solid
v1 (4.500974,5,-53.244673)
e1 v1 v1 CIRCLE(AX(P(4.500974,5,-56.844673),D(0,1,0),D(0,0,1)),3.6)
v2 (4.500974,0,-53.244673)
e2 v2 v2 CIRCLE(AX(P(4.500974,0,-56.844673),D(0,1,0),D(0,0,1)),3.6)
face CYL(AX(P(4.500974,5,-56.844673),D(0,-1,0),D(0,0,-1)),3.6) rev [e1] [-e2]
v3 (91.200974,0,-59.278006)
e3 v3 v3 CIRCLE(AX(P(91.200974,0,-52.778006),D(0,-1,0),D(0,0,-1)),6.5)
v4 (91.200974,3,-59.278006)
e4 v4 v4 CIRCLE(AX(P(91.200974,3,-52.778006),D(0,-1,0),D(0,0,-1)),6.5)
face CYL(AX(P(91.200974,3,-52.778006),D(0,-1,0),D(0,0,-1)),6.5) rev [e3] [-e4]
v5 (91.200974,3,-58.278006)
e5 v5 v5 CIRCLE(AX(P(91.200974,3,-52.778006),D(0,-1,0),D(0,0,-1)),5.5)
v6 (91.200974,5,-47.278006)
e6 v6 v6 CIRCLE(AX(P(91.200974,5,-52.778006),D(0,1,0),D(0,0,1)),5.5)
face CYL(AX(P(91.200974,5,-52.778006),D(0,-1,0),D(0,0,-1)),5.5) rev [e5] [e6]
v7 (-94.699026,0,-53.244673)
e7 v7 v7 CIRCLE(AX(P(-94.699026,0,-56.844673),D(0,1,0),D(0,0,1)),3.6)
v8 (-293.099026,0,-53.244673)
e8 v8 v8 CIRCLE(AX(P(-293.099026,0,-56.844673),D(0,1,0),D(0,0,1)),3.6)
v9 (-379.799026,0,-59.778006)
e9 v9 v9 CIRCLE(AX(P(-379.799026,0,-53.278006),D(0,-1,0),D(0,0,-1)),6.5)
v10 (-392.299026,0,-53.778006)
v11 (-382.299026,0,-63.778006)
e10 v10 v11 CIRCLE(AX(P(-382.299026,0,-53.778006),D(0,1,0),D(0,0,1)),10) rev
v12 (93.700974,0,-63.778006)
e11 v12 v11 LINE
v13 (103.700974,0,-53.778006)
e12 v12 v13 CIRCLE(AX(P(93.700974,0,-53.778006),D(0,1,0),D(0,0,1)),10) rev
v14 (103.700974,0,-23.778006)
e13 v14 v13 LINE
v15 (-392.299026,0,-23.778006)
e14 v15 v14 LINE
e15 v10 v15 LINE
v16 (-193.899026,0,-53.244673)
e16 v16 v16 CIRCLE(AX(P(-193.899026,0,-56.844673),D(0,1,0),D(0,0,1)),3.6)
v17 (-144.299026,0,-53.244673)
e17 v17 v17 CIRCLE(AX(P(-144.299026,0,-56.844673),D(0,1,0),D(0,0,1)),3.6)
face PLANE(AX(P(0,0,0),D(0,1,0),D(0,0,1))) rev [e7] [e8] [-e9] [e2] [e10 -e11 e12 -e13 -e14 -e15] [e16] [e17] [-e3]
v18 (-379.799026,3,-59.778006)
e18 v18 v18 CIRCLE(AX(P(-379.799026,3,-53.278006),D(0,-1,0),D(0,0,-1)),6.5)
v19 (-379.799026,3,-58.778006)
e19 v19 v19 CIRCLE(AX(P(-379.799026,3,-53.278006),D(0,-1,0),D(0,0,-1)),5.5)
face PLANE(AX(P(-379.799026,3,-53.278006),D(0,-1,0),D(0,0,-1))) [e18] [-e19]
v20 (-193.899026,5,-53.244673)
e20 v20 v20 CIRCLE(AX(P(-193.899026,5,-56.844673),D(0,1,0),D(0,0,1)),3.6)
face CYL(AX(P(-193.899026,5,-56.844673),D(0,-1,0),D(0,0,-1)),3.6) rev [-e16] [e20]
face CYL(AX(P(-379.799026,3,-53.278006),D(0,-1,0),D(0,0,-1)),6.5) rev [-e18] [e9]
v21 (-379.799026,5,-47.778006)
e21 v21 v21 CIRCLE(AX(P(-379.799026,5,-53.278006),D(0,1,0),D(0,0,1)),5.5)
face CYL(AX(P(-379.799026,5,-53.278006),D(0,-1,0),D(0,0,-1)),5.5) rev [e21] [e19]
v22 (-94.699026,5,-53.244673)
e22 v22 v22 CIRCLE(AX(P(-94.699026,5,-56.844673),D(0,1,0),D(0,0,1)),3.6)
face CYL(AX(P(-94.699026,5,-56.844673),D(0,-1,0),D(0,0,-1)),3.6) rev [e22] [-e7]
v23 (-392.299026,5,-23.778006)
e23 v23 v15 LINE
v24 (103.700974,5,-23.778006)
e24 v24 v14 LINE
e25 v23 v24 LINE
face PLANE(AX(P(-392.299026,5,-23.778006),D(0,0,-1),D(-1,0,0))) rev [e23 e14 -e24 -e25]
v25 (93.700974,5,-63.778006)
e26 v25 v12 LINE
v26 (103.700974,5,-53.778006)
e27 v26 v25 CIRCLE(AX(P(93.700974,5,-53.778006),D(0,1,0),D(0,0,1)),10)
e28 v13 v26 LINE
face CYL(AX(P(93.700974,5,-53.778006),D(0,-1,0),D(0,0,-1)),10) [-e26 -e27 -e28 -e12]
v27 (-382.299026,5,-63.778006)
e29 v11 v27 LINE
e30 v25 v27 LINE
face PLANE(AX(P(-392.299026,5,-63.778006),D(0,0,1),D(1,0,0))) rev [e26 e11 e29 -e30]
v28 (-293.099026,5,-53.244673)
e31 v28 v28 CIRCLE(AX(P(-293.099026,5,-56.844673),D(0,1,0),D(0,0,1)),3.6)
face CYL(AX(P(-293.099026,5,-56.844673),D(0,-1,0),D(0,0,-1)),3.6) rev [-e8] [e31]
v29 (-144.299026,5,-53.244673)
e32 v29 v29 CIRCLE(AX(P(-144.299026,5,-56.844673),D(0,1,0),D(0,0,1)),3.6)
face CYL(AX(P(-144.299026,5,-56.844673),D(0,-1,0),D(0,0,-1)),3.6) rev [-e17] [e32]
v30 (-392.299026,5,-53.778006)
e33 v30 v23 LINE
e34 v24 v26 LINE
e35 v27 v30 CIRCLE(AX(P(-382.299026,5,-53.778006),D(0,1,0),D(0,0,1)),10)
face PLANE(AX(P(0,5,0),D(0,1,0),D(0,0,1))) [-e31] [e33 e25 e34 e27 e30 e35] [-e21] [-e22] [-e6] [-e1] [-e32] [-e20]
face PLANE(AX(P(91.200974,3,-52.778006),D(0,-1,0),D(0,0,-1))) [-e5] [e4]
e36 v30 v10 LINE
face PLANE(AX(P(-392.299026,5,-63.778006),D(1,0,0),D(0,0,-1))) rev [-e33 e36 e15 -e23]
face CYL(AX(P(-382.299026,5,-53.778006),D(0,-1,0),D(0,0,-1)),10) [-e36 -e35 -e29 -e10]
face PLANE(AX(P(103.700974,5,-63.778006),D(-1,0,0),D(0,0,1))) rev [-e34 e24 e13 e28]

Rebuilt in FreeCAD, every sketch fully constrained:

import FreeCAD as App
import Part
import Sketcher


def edges_at(feature, points):
    """Names of the edges that pass closest to the given points."""
    edges = feature.Shape.Edges
    near = lambda p: min(range(len(edges)), key=lambda i: edges[i].distToShape(Part.Vertex(*p))[0])
    return sorted({f"Edge{near(p) + 1}" for p in points})


def add_polygon(sketch, points):
    """Adds a closed chain of lines whose ends are joined by coincident constraints."""
    first, n = sketch.GeometryCount, len(points)
    for a, b in zip(points, points[1:] + points[:1]):
        sketch.addGeometry(Part.LineSegment(App.Vector(*a, 0), App.Vector(*b, 0)), False)
    for i in range(n):
        sketch.addConstraint(Sketcher.Constraint("Coincident", first + i, 2, first + (i + 1) % n, 1))

doc = App.newDocument("Part")
params = doc.addObject("Spreadsheet::Sheet", "Params")
for row, (alias, value) in enumerate([
    ("sketch1_diameter", "11 mm"),
    ("sketch1_diameter2", "7.2 mm"),
    ("sketch1_width", "496 mm"),
    ("sketch1_height", "40 mm"),
    ("pad1_length", "5 mm"),
    ("sketch2_diameter", "13 mm"),
    ("pocket1_length", "3 mm"),
    ("fillet_radius", "10 mm"),
], start=1):
    params.set(f"A{row}", alias)
    params.set(f"B{row}", "=" + value)
    params.setAlias(f"B{row}", alias)

body = doc.addObject("PartDesign::Body", "Body")

sketch1 = body.newObject("Sketcher::SketchObject", "Sketch")
sketch1.AttachmentSupport = (doc.getObject("XZ_Plane"), [""])
sketch1.MapMode = "FlatFace"
add_polygon(sketch1, [(-392.3, -63.8), (-392.3, -23.8), (103.7, -23.8), (103.7, -63.8)])
sketch1.addGeometry(Part.Circle(App.Vector(-379.8, -53.3, 0), App.Vector(0, 0, 1), 5.5), False)
sketch1.addGeometry(Part.Circle(App.Vector(91.2, -52.8, 0), App.Vector(0, 0, 1), 5.5), False)
sketch1.addGeometry(Part.Circle(App.Vector(-293.1, -56.8, 0), App.Vector(0, 0, 1), 3.6), False)
sketch1.addGeometry(Part.Circle(App.Vector(-193.9, -56.8, 0), App.Vector(0, 0, 1), 3.6), False)
sketch1.addGeometry(Part.Circle(App.Vector(-144.3, -56.8, 0), App.Vector(0, 0, 1), 3.6), False)
sketch1.addGeometry(Part.Circle(App.Vector(-94.7, -56.8, 0), App.Vector(0, 0, 1), 3.6), False)
sketch1.addGeometry(Part.Circle(App.Vector(4.5, -56.8, 0), App.Vector(0, 0, 1), 3.6), False)
sketch1.addConstraint(Sketcher.Constraint("Vertical", 0))
sketch1.addConstraint(Sketcher.Constraint("Horizontal", 1))
sketch1.addConstraint(Sketcher.Constraint("Vertical", 2))
sketch1.addConstraint(Sketcher.Constraint("Horizontal", 3))
sketch1.addConstraint(Sketcher.Constraint("Equal", 4, 5))
sketch1.addConstraint(Sketcher.Constraint("Equal", 6, 7))
sketch1.addConstraint(Sketcher.Constraint("Equal", 7, 8))
sketch1.addConstraint(Sketcher.Constraint("Equal", 8, 9))
sketch1.addConstraint(Sketcher.Constraint("Equal", 9, 10))
sketch1.addConstraint(Sketcher.Constraint("Horizontal", 6, 3, 7, 3))
sketch1.addConstraint(Sketcher.Constraint("Horizontal", 7, 3, 8, 3))
sketch1.addConstraint(Sketcher.Constraint("Horizontal", 8, 3, 9, 3))
sketch1.addConstraint(Sketcher.Constraint("Horizontal", 9, 3, 10, 3))
sketch1.addConstraint(Sketcher.Constraint("Diameter", 4, 11.0))
sketch1.addConstraint(Sketcher.Constraint("Diameter", 6, 7.2))
sketch1.addConstraint(Sketcher.Constraint("DistanceX", 1, 1, 1, 2, 496.0))
sketch1.addConstraint(Sketcher.Constraint("DistanceY", 0, 1, 0, 2, 40.0))
sketch1.addConstraint(Sketcher.Constraint("DistanceX", 4, 3, 5, 3, 471.0))
sketch1.addConstraint(Sketcher.Constraint("DistanceX", 0, 2, 8, 3, 248.0))
sketch1.addConstraint(Sketcher.Constraint("DistanceY", 5, 3, 1, 2, 29.0))
sketch1.addConstraint(Sketcher.Constraint("DistanceY", 4, 3, 5, 3, 0.5))
sketch1.addConstraint(Sketcher.Constraint("DistanceX", 4, 3, 6, 3, 86.7))
sketch1.addConstraint(Sketcher.Constraint("DistanceX", 6, 3, 7, 3, 99.2))
sketch1.addConstraint(Sketcher.Constraint("DistanceX", 7, 3, 8, 3, 49.6))
sketch1.addConstraint(Sketcher.Constraint("DistanceX", 8, 3, 9, 3, 49.6))
sketch1.addConstraint(Sketcher.Constraint("DistanceX", 10, 3, 5, 3, 86.7))
sketch1.addConstraint(Sketcher.Constraint("DistanceX", 4, 3, -1, 1, 379.799026))
sketch1.addConstraint(Sketcher.Constraint("DistanceY", 4, 3, -1, 1, 53.278006))
sketch1.addConstraint(Sketcher.Constraint("DistanceY", 6, 3, -1, 1, 56.844673))
sketch1.setExpression("Constraints[17]", "Params.sketch1_diameter")
sketch1.setExpression("Constraints[18]", "Params.sketch1_diameter2")
sketch1.setExpression("Constraints[19]", "Params.sketch1_width")
sketch1.setExpression("Constraints[20]", "Params.sketch1_height")
pad1 = body.newObject("PartDesign::Pad", "Pad")
pad1.Profile = sketch1
pad1.setExpression("Length", "Params.pad1_length")
pad1.Reversed = True

sketch2 = body.newObject("Sketcher::SketchObject", "Sketch001")
sketch2.AttachmentSupport = (doc.getObject("XZ_Plane"), [""])
sketch2.MapMode = "FlatFace"
sketch2.addGeometry(Part.Circle(App.Vector(-380, -53, 0), App.Vector(0, 0, 1), 6), False)
sketch2.addGeometry(Part.Circle(App.Vector(91, -53, 0), App.Vector(0, 0, 1), 6), False)
sketch2.addConstraint(Sketcher.Constraint("Equal", 0, 1))
sketch2.addConstraint(Sketcher.Constraint("Diameter", 0, 13.0))
sketch2.addConstraint(Sketcher.Constraint("DistanceX", 0, 3, 1, 3, 471.0))
sketch2.addConstraint(Sketcher.Constraint("DistanceY", 0, 3, 1, 3, 0.5))
sketch2.addConstraint(Sketcher.Constraint("DistanceX", 0, 3, -1, 1, 379.799026))
sketch2.addConstraint(Sketcher.Constraint("DistanceY", 0, 3, -1, 1, 53.278006))
sketch2.setExpression("Constraints[1]", "Params.sketch2_diameter")
pocket1 = body.newObject("PartDesign::Pocket", "Pocket")
pocket1.Profile = sketch2
pocket1.setExpression("Length", "Params.pocket1_length")
doc.recompute()

fillet = body.newObject("PartDesign::Fillet", "Fillet")
fillet.Base = (pocket1, edges_at(pocket1, [(-392.299, 2.5, -63.778), (103.701, 2.5, -63.778)]))
fillet.setExpression("Radius", "Params.fillet_radius")

doc.recompute()
